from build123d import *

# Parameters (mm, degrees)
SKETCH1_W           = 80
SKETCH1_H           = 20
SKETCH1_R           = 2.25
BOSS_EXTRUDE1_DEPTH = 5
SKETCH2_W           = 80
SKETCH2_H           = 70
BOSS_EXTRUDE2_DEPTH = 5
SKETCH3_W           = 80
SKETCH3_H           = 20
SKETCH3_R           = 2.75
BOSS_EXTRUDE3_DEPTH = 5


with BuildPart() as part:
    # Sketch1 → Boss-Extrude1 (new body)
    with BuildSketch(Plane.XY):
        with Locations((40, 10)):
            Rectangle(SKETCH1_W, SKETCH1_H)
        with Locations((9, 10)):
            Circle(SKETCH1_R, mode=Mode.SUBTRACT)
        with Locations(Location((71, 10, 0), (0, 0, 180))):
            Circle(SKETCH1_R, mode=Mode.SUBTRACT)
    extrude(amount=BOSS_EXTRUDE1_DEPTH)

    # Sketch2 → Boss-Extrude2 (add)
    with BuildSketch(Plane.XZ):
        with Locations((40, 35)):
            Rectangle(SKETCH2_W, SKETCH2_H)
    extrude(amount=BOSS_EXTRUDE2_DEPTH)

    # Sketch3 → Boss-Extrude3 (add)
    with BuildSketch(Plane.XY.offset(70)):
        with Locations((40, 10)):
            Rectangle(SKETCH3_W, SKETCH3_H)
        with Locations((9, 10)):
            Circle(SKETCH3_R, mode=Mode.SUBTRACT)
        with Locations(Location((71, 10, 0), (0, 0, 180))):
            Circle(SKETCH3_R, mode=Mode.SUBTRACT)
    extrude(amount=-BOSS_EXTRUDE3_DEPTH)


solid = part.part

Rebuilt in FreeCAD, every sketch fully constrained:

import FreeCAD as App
import Part
import Sketcher

V = App.Vector
Q = App.Units.Quantity

doc = App.newDocument("Part")
body = doc.addObject("PartDesign::Body", "Body")

# Sketch on XY plane
sketch1 = body.newObject("Sketcher::SketchObject", "Sketch")
sketch1.AttachmentSupport = (doc.getObject("XY_Plane"), [""])
sketch1.MapMode = "FlatFace"
sketch1.addGeometry([
    Part.LineSegment(V(0, 20, 0), V(0, 0, 0)),  # 0
    Part.LineSegment(V(0, 0, 0), V(80, 0, 0)),  # 1
    Part.LineSegment(V(80, 0, 0), V(80, 20, 0)),  # 2
    Part.LineSegment(V(80, 20, 0), V(0, 20, 0)),  # 3
    Part.Circle(V(9, 10, 0), V(0, 0, 1), 2.25),  # 4
    Part.Circle(V(71, 10, 0), V(0, 0, 1), 2.25),  # 5
], False)
sketch1.addConstraint([
    Sketcher.Constraint("Coincident", 0, 2, 1, 1),
    Sketcher.Constraint("Coincident", 1, 2, 2, 1),
    Sketcher.Constraint("Coincident", 2, 2, 3, 1),
    Sketcher.Constraint("Coincident", 3, 2, 0, 1),
    Sketcher.Constraint("Vertical", 0),
    Sketcher.Constraint("Horizontal", 1),
    Sketcher.Constraint("Vertical", 2),
    Sketcher.Constraint("Horizontal", 3),
    Sketcher.Constraint("Coincident", 0, 2, -1, 1),
    Sketcher.Constraint("Equal", 4, 5),
    Sketcher.Constraint("Horizontal", 4, 3, 5, 3),
    Sketcher.Constraint("Diameter", 4, Q("4.5 mm")),
    Sketcher.Constraint("DistanceX", 1, 1, 1, 2, Q("80 mm")),
    Sketcher.Constraint("DistanceY", 0, 2, 0, 1, Q("20 mm")),
    Sketcher.Constraint("DistanceX", -1, 1, 4, 3, Q("9 mm")),
    Sketcher.Constraint("DistanceY", -1, 1, 4, 3, Q("10 mm")),
    Sketcher.Constraint("DistanceX", -1, 1, 5, 3, Q("71 mm")),
])
pad1 = body.newObject("PartDesign::Pad", "Pad")
pad1.Profile = sketch1
pad1.Length = 5

# Sketch on XZ plane
sketch2 = body.newObject("Sketcher::SketchObject", "Sketch001")
sketch2.AttachmentSupport = (doc.getObject("XZ_Plane"), [""])
sketch2.MapMode = "FlatFace"
sketch2.addGeometry([
    Part.LineSegment(V(0, 70, 0), V(0, 0, 0)),
    Part.LineSegment(V(0, 0, 0), V(80, 0, 0)),
    Part.LineSegment(V(80, 0, 0), V(80, 70, 0)),
    Part.LineSegment(V(80, 70, 0), V(0, 70, 0)),
], False)
sketch2.addConstraint([
    Sketcher.Constraint("Coincident", 0, 2, 1, 1),
    Sketcher.Constraint("Coincident", 1, 2, 2, 1),
    Sketcher.Constraint("Coincident", 2, 2, 3, 1),
    Sketcher.Constraint("Coincident", 3, 2, 0, 1),
    Sketcher.Constraint("Vertical", 0),
    Sketcher.Constraint("Horizontal", 1),
    Sketcher.Constraint("Vertical", 2),
    Sketcher.Constraint("Horizontal", 3),
    Sketcher.Constraint("Coincident", 0, 2, -1, 1),
    Sketcher.Constraint("DistanceX", 1, 1, 1, 2, Q("80 mm")),
    Sketcher.Constraint("DistanceY", 0, 2, 0, 1, Q("70 mm")),
])
pad2 = body.newObject("PartDesign::Pad", "Pad001")
pad2.Profile = sketch2
pad2.Length = 5

# Sketch on XY plane
sketch3 = body.newObject("Sketcher::SketchObject", "Sketch002")
sketch3.AttachmentSupport = (doc.getObject("XY_Plane"), [""])
sketch3.MapMode = "FlatFace"
sketch3.AttachmentOffset = App.Placement(V(0, 0, 70), App.Rotation())
sketch3.addGeometry([
    Part.LineSegment(V(0, 20, 0), V(0, 0, 0)),  # 0
    Part.LineSegment(V(0, 0, 0), V(80, 0, 0)),  # 1
    Part.LineSegment(V(80, 0, 0), V(80, 20, 0)),  # 2
    Part.LineSegment(V(80, 20, 0), V(0, 20, 0)),  # 3
    Part.Circle(V(9, 10, 0), V(0, 0, 1), 2.75),  # 4
    Part.Circle(V(71, 10, 0), V(0, 0, 1), 2.75),  # 5
], False)
sketch3.addConstraint([
    Sketcher.Constraint("Coincident", 0, 2, 1, 1),
    Sketcher.Constraint("Coincident", 1, 2, 2, 1),
    Sketcher.Constraint("Coincident", 2, 2, 3, 1),
    Sketcher.Constraint("Coincident", 3, 2, 0, 1),
    Sketcher.Constraint("Vertical", 0),
    Sketcher.Constraint("Horizontal", 1),
    Sketcher.Constraint("Vertical", 2),
    Sketcher.Constraint("Horizontal", 3),
    Sketcher.Constraint("Coincident", 0, 2, -1, 1),
    Sketcher.Constraint("Equal", 4, 5),
    Sketcher.Constraint("Horizontal", 4, 3, 5, 3),
    Sketcher.Constraint("Diameter", 4, Q("5.5 mm")),
    Sketcher.Constraint("DistanceX", 1, 1, 1, 2, Q("80 mm")),
    Sketcher.Constraint("DistanceY", 0, 2, 0, 1, Q("20 mm")),
    Sketcher.Constraint("DistanceX", -1, 1, 4, 3, Q("9 mm")),
    Sketcher.Constraint("DistanceY", -1, 1, 4, 3, Q("10 mm")),
    Sketcher.Constraint("DistanceX", -1, 1, 5, 3, Q("71 mm")),
])
pad3 = body.newObject("PartDesign::Pad", "Pad002")
pad3.Profile = sketch3
pad3.Length = 5
pad3.Reversed = True

doc.recompute()
